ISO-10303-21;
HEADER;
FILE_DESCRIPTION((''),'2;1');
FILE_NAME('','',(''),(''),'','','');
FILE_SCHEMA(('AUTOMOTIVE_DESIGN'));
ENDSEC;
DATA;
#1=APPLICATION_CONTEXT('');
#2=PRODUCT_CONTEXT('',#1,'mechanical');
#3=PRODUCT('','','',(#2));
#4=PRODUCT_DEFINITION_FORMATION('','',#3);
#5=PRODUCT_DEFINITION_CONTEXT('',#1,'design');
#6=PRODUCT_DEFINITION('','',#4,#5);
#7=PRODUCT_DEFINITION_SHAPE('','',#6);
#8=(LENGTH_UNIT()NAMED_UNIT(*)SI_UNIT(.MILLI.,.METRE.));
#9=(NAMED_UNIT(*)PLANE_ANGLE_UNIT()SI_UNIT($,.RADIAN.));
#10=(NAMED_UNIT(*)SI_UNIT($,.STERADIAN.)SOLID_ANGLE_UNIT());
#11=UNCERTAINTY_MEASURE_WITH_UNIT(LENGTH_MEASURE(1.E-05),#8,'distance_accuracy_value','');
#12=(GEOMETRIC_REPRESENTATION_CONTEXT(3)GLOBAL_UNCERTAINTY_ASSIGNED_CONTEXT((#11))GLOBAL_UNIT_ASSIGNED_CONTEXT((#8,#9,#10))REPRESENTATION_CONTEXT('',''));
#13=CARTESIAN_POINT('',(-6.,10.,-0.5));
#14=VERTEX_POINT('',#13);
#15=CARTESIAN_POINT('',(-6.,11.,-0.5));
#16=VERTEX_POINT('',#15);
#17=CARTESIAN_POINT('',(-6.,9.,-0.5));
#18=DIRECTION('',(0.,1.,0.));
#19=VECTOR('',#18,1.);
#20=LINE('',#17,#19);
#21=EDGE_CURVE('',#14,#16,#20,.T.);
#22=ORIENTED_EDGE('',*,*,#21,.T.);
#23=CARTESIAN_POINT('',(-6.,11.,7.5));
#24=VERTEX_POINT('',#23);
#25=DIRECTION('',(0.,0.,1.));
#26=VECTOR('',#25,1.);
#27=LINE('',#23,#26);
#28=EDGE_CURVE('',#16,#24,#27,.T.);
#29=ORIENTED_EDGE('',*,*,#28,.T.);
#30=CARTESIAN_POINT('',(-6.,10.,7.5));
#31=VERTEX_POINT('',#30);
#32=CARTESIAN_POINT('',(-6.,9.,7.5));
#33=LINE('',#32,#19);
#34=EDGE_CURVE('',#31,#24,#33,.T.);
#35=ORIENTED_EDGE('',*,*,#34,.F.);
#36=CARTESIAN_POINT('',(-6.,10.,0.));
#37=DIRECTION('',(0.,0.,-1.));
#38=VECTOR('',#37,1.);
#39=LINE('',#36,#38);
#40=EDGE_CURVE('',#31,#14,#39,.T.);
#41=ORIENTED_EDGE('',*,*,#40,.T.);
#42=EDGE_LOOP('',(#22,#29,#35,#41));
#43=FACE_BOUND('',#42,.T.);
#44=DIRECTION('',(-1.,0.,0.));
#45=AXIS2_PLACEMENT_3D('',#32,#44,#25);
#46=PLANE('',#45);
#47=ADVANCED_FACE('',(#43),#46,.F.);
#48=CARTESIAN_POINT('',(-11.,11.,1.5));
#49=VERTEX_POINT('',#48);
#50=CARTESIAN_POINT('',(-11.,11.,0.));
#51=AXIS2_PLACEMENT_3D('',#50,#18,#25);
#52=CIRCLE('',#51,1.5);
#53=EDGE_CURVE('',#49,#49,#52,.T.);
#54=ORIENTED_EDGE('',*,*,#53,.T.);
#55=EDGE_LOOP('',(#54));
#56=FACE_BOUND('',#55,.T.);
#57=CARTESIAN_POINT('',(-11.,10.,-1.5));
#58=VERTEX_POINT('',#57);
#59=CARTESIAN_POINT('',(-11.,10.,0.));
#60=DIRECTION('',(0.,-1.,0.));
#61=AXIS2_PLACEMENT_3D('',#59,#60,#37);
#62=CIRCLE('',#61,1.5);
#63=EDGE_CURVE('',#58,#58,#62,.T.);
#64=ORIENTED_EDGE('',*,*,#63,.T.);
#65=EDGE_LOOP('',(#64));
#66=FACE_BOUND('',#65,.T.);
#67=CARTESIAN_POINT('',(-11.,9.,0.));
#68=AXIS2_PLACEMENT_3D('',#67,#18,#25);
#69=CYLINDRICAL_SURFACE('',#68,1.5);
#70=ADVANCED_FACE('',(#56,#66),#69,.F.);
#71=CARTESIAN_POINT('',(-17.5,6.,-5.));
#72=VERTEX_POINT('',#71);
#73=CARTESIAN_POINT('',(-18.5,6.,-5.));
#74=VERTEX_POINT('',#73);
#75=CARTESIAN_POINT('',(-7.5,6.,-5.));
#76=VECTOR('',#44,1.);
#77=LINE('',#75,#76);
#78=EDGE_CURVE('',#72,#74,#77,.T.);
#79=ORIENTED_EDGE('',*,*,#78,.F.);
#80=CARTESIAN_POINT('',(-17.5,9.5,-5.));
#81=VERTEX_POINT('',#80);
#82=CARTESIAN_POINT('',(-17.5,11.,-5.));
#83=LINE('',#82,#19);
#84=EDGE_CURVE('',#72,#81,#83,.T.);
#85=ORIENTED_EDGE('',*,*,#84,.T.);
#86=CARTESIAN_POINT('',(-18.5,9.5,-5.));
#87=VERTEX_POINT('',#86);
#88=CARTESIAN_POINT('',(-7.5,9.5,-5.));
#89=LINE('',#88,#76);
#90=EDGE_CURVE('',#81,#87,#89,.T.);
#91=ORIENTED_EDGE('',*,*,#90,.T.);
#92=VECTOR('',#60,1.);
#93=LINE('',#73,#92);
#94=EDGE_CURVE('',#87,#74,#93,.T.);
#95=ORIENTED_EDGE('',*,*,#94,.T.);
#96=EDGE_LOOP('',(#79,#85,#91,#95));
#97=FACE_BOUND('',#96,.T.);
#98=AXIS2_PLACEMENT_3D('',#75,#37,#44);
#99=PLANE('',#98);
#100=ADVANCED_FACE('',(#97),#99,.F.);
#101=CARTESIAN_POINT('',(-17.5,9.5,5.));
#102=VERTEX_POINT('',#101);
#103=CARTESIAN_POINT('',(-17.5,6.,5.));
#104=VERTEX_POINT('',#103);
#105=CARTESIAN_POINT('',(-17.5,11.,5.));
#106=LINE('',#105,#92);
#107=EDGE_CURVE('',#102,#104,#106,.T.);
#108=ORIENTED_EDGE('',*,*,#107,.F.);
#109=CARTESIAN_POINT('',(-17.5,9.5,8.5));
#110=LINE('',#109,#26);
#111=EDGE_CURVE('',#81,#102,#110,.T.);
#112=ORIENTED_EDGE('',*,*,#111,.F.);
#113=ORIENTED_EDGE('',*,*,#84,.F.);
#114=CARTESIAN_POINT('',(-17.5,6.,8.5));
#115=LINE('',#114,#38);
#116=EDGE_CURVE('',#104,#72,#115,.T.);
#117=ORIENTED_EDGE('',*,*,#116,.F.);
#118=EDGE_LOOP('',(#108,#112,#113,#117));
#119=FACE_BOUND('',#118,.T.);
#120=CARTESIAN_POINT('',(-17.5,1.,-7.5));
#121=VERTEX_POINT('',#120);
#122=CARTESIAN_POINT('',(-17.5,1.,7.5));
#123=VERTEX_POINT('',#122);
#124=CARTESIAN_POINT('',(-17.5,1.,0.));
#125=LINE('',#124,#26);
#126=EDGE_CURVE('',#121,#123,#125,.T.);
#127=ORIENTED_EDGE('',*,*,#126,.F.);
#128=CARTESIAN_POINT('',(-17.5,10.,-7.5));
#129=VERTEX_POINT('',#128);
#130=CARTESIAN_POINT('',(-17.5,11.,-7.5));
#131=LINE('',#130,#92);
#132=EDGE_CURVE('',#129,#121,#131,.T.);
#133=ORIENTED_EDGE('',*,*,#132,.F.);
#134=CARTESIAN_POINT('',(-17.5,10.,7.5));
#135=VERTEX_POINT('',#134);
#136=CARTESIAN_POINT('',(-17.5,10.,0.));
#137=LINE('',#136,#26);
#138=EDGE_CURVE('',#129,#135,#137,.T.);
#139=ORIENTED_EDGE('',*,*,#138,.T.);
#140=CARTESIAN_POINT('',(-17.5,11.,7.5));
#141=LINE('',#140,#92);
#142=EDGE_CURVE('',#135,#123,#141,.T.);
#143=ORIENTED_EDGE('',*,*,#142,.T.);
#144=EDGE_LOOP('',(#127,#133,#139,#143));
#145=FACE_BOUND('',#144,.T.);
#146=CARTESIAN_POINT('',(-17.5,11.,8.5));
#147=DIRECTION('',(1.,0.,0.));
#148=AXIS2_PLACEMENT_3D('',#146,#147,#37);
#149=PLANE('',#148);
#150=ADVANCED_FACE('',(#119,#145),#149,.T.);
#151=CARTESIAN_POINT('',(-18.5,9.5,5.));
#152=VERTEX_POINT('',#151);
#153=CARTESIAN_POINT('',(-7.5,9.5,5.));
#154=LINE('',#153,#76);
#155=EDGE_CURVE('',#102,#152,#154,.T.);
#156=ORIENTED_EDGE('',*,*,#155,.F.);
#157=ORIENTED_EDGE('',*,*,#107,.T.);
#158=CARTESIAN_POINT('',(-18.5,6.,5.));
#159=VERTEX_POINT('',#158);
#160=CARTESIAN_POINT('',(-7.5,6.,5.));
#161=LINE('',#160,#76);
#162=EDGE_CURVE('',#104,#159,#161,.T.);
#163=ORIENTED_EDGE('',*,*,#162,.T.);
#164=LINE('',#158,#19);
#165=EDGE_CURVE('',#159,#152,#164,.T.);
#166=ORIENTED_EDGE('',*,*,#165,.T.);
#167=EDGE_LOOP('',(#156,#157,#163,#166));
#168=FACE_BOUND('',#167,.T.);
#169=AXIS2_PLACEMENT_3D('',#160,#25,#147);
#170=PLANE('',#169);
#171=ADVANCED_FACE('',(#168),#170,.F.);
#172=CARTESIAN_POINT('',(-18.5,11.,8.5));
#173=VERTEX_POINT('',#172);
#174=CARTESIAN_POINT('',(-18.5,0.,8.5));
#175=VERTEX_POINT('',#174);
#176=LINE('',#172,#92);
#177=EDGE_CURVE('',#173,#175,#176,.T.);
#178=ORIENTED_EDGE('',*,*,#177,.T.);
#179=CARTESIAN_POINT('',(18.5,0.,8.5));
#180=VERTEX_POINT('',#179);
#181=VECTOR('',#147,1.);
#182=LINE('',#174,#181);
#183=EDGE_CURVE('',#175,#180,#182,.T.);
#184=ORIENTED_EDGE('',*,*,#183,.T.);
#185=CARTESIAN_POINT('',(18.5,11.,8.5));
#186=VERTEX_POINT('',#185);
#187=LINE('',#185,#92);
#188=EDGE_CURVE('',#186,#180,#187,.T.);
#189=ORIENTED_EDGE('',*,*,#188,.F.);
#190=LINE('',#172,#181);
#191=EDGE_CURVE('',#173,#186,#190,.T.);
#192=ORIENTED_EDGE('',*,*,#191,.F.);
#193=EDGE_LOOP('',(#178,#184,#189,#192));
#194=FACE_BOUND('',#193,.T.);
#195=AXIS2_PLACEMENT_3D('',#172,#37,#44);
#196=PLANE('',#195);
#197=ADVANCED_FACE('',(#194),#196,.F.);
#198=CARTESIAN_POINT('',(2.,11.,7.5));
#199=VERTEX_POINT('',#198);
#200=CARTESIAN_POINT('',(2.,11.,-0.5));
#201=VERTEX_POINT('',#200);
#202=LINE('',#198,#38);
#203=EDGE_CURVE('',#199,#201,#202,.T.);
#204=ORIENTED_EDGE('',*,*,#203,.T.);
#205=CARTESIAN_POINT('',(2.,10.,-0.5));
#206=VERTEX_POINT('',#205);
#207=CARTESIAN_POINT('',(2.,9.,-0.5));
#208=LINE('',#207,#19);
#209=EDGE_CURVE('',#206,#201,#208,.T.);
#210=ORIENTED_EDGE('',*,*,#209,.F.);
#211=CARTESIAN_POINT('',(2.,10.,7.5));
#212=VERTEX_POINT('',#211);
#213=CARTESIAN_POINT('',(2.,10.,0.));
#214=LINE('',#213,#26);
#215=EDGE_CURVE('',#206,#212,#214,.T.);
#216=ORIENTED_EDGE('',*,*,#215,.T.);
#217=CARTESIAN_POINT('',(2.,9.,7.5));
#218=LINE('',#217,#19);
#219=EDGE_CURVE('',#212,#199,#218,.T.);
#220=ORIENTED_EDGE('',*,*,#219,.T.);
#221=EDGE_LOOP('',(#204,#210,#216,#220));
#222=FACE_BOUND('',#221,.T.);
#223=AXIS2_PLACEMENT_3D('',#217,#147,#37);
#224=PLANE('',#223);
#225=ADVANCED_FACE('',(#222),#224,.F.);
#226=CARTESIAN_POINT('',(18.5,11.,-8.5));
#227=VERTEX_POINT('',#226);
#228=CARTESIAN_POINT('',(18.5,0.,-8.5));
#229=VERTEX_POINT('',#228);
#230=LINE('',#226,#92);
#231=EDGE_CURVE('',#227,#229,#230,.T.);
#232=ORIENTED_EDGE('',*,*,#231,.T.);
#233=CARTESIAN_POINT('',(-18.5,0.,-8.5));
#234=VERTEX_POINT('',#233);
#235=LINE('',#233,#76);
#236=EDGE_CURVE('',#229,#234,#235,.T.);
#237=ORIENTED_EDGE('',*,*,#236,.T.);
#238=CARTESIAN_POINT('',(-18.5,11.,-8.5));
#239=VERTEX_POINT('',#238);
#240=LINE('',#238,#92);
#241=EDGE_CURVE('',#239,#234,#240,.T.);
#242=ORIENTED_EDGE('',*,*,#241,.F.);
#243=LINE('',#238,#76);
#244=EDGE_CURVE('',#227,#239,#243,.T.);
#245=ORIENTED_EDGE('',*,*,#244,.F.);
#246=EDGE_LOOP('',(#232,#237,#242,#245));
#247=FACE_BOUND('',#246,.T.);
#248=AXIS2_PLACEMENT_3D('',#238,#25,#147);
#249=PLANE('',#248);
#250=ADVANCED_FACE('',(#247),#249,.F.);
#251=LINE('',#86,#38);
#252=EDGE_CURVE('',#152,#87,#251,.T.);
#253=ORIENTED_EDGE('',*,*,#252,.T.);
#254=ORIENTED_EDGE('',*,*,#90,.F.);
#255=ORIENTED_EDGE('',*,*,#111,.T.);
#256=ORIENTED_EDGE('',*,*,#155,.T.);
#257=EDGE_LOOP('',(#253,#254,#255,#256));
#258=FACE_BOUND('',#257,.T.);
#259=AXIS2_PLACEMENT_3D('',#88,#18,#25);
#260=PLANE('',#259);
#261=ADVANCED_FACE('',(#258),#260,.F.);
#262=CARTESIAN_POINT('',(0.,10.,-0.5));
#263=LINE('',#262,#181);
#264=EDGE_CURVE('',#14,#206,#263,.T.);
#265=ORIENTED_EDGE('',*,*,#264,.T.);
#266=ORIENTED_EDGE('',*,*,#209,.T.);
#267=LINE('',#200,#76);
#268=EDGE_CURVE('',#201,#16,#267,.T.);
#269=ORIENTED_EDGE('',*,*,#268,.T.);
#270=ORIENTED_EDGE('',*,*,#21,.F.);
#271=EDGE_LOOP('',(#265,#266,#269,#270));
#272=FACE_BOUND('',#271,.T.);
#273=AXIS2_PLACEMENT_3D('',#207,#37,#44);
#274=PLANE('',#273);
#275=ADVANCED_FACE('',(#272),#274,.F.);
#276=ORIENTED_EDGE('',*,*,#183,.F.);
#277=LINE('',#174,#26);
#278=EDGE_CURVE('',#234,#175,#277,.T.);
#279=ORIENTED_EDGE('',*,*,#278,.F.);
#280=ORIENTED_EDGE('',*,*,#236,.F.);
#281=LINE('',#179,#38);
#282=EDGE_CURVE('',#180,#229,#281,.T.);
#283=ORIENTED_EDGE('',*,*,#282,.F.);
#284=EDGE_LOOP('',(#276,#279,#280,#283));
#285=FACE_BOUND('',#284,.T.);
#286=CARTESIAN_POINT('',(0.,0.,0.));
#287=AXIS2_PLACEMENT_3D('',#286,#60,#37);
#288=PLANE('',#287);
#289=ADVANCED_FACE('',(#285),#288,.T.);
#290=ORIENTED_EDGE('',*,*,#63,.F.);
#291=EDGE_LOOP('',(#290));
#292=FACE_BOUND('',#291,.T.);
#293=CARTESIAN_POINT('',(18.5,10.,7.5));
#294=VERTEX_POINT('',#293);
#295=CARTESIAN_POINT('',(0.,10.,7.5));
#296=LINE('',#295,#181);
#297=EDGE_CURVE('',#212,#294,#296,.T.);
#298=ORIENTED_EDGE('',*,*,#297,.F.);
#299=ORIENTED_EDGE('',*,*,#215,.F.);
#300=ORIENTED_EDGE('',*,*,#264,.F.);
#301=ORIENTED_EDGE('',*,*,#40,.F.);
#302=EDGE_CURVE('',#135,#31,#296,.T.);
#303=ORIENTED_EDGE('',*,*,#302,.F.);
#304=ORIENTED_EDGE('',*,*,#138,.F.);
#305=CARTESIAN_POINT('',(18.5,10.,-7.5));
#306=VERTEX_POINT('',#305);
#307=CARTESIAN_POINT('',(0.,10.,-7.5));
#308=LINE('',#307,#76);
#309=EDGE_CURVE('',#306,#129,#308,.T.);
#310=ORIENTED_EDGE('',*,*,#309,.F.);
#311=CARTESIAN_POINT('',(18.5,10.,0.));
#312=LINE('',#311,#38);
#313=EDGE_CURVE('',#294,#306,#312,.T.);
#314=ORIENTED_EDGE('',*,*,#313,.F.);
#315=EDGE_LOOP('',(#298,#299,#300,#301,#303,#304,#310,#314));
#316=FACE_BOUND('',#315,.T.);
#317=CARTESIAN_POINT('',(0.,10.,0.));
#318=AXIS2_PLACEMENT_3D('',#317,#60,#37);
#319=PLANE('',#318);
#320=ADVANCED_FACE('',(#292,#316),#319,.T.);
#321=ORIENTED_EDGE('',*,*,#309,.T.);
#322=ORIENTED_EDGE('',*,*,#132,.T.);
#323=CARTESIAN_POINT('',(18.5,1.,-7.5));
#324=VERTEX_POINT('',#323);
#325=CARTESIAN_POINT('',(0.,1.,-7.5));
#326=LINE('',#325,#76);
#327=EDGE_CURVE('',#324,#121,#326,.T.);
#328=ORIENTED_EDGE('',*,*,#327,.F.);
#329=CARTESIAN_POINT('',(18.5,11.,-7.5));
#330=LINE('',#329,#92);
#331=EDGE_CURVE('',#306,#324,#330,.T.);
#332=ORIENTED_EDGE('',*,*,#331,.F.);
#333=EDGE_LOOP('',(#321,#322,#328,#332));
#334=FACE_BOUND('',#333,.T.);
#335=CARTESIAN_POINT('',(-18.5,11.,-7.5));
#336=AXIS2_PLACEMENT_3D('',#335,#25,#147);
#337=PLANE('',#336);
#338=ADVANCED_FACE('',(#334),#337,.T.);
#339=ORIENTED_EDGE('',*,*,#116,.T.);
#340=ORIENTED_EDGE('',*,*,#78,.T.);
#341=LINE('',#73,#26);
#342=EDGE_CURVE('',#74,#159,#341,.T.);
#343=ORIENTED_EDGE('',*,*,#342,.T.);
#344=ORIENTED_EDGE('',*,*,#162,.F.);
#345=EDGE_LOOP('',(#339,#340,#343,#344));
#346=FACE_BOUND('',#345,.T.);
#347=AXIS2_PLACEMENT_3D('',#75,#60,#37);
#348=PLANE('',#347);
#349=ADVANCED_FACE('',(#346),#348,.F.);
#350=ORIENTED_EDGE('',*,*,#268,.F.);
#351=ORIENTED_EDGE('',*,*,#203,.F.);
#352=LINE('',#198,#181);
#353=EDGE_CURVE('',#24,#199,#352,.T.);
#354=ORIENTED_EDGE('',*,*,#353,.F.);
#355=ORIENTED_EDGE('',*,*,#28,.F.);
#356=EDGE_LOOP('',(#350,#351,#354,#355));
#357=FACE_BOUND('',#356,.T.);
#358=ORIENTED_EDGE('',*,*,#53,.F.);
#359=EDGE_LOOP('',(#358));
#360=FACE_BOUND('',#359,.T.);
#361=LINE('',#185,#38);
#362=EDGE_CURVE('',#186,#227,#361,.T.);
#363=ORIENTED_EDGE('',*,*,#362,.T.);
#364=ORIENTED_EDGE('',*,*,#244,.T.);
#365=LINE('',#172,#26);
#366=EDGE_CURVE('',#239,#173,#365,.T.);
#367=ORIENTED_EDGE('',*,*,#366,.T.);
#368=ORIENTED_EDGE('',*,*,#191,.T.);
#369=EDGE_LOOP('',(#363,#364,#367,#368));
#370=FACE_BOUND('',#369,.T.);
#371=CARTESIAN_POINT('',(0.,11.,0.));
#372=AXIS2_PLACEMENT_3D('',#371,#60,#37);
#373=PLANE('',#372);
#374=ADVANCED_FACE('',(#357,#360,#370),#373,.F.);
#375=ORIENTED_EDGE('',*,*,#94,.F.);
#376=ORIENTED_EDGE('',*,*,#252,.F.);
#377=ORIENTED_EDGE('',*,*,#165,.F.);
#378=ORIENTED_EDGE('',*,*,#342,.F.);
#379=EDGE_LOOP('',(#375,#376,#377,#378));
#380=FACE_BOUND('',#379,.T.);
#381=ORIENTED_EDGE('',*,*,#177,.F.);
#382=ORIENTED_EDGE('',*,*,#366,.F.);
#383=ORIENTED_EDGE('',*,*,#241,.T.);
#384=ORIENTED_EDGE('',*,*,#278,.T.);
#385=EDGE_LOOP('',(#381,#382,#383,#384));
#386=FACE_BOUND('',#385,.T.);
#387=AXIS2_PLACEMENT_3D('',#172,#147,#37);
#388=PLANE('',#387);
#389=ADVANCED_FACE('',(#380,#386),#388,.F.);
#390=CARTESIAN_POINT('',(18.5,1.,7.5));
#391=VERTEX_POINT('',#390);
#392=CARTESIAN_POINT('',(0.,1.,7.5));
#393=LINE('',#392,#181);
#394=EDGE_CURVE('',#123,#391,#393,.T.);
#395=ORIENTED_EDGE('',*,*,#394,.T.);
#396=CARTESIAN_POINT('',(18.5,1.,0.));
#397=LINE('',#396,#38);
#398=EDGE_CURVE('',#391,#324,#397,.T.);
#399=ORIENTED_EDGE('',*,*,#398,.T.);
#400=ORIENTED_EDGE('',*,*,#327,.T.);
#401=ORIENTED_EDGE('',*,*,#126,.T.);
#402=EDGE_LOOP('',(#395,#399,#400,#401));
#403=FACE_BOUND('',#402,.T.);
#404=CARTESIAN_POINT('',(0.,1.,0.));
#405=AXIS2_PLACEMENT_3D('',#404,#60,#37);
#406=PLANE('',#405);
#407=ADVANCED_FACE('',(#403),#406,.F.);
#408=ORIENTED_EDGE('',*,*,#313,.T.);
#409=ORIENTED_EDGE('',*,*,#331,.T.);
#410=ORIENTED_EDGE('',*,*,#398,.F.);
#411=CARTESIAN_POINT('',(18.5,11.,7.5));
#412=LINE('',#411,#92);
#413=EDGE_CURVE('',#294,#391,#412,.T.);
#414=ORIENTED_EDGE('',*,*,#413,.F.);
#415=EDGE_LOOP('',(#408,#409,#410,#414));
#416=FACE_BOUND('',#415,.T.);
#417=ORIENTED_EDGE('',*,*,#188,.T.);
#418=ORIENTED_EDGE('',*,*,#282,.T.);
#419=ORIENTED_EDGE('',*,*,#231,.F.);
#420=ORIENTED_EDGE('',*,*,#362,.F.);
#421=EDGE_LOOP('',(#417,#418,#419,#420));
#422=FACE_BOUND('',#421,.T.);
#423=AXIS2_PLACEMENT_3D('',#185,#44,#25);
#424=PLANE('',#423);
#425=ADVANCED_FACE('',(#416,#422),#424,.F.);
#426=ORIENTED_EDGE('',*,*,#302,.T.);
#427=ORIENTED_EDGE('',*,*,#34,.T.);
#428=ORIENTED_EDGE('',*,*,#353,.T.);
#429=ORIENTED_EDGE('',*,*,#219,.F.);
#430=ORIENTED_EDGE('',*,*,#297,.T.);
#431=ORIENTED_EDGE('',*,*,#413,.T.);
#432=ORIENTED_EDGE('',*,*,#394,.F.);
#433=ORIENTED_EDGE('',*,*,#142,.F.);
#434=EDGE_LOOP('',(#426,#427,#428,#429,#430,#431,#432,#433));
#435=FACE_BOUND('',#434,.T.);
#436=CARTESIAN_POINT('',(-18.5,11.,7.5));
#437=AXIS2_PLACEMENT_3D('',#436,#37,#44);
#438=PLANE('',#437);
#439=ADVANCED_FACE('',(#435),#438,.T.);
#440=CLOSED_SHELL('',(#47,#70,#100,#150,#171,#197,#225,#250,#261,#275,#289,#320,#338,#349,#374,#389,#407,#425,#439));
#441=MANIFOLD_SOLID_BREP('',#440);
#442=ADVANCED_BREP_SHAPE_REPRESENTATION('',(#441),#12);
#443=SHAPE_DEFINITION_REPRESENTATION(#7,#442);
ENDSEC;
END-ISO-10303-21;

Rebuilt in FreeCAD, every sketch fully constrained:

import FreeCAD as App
import Part
import Sketcher

V = App.Vector


def faces_at(feature, points):
    """Names of the faces that lie closest to the given points."""
    faces = feature.Shape.Faces
    near = lambda p: min(range(len(faces)), key=lambda i: faces[i].distToShape(Part.Vertex(*p))[0])
    return sorted({f"Face{near(p) + 1}" for p in points})

doc = App.newDocument("Part")
body = doc.addObject("PartDesign::Body", "Body")

# Sketch on XZ plane
sketch1 = body.newObject("Sketcher::SketchObject", "Sketch")
sketch1.AttachmentSupport = (doc.getObject("XZ_Plane"), [""])
sketch1.MapMode = "FlatFace"
sketch1.addGeometry([
    Part.LineSegment(V(-18.5, -8.5, 0), V(-18.5, 8.5, 0)),
    Part.LineSegment(V(-18.5, 8.5, 0), V(18.5, 8.5, 0)),
    Part.LineSegment(V(18.5, 8.5, 0), V(18.5, -8.5, 0)),
    Part.LineSegment(V(18.5, -8.5, 0), V(-18.5, -8.5, 0)),
], False)
sketch1.addConstraint([
    Sketcher.Constraint("Coincident", 0, 2, 1, 1),
    Sketcher.Constraint("Coincident", 1, 2, 2, 1),
    Sketcher.Constraint("Coincident", 2, 2, 3, 1),
    Sketcher.Constraint("Coincident", 3, 2, 0, 1),
    Sketcher.Constraint("Vertical", 0),
    Sketcher.Constraint("Horizontal", 1),
    Sketcher.Constraint("Vertical", 2),
    Sketcher.Constraint("Horizontal", 3),
    Sketcher.Constraint("Symmetric", 0, 2, 2, 2, -1, 1),
    Sketcher.Constraint("DistanceX", 1, 1, 1, 2, 37.0),
    Sketcher.Constraint("DistanceY", 0, 1, 0, 2, 17.0),
])
pad1 = body.newObject("PartDesign::Pad", "Pad")
pad1.Profile = sketch1
pad1.Length = 11
pad1.Reversed = True
doc.recompute()

thickness = body.newObject("PartDesign::Thickness", "Thickness")
thickness.Base = (pad1, faces_at(pad1, [(18.5, 5.5, 0)]))
thickness.Value = 1
thickness.Reversed = True
thickness.Join = "Intersection"

# Sketch on YZ plane
sketch2 = body.newObject("Sketcher::SketchObject", "Sketch001")
sketch2.AttachmentSupport = (doc.getObject("YZ_Plane"), [""])
sketch2.MapMode = "FlatFace"
sketch2.AttachmentOffset = App.Placement(V(0, 0, -18.5), App.Rotation())
sketch2.addGeometry([
    Part.LineSegment(V(9.5, -5, 0), V(6, -5, 0)),
    Part.LineSegment(V(6, -5, 0), V(6, 5, 0)),
    Part.LineSegment(V(6, 5, 0), V(9.5, 5, 0)),
    Part.LineSegment(V(9.5, 5, 0), V(9.5, -5, 0)),
], False)
sketch2.addConstraint([
    Sketcher.Constraint("Coincident", 0, 2, 1, 1),
    Sketcher.Constraint("Coincident", 1, 2, 2, 1),
    Sketcher.Constraint("Coincident", 2, 2, 3, 1),
    Sketcher.Constraint("Coincident", 3, 2, 0, 1),
    Sketcher.Constraint("Horizontal", 0),
    Sketcher.Constraint("Vertical", 1),
    Sketcher.Constraint("Horizontal", 2),
    Sketcher.Constraint("Vertical", 3),
    Sketcher.Constraint("DistanceY", 1, 1, 1, 2, 10.0),
    Sketcher.Constraint("DistanceX", 0, 2, 0, 1, 3.5),
    Sketcher.Constraint("DistanceX", -1, 1, 0, 2, 6.0),
    Sketcher.Constraint("DistanceY", 0, 2, -1, 1, 5.0),
])
pocket1 = body.newObject("PartDesign::Pocket", "Pocket")
pocket1.Profile = sketch2
pocket1.Length = 11
pocket1.Reversed = True

# Sketch on XZ plane
sketch3 = body.newObject("Sketcher::SketchObject", "Sketch002")
sketch3.AttachmentSupport = (doc.getObject("XZ_Plane"), [""])
sketch3.MapMode = "FlatFace"
sketch3.AttachmentOffset = App.Placement(V(0, 0, -11), App.Rotation())
sketch3.addGeometry([
    Part.Circle(V(-11, 0, 0), V(0, 0, 1), 1.5),  # 0
    Part.LineSegment(V(-6, -0.5, 0), V(-6, 7.5, 0)),  # 1
    Part.LineSegment(V(-6, 7.5, 0), V(2, 7.5, 0)),  # 2
    Part.LineSegment(V(2, 7.5, 0), V(2, -0.5, 0)),  # 3
    Part.LineSegment(V(2, -0.5, 0), V(-6, -0.5, 0)),  # 4
], False)
sketch3.addConstraint([
    Sketcher.Constraint("Coincident", 1, 2, 2, 1),
    Sketcher.Constraint("Coincident", 2, 2, 3, 1),
    Sketcher.Constraint("Coincident", 3, 2, 4, 1),
    Sketcher.Constraint("Coincident", 4, 2, 1, 1),
    Sketcher.Constraint("Vertical", 1),
    Sketcher.Constraint("Horizontal", 2),
    Sketcher.Constraint("Vertical", 3),
    Sketcher.Constraint("Horizontal", 4),
    Sketcher.Constraint("PointOnObject", 0, 3, -1),
    Sketcher.Constraint("Equal", 4, 1),
    Sketcher.Constraint("Diameter", 0, 3.0),
    Sketcher.Constraint("DistanceX", 2, 1, 2, 2, 8.0),
    Sketcher.Constraint("DistanceX", 0, 3, -1, 1, 11.0),
    Sketcher.Constraint("DistanceX", 1, 2, -1, 1, 6.0),
    Sketcher.Constraint("DistanceY", -1, 1, 1, 2, 7.5),
])
pocket2 = body.newObject("PartDesign::Pocket", "Pocket001")
pocket2.Profile = sketch3
pocket2.Length = 2
pocket2.Reversed = True

doc.recompute()
